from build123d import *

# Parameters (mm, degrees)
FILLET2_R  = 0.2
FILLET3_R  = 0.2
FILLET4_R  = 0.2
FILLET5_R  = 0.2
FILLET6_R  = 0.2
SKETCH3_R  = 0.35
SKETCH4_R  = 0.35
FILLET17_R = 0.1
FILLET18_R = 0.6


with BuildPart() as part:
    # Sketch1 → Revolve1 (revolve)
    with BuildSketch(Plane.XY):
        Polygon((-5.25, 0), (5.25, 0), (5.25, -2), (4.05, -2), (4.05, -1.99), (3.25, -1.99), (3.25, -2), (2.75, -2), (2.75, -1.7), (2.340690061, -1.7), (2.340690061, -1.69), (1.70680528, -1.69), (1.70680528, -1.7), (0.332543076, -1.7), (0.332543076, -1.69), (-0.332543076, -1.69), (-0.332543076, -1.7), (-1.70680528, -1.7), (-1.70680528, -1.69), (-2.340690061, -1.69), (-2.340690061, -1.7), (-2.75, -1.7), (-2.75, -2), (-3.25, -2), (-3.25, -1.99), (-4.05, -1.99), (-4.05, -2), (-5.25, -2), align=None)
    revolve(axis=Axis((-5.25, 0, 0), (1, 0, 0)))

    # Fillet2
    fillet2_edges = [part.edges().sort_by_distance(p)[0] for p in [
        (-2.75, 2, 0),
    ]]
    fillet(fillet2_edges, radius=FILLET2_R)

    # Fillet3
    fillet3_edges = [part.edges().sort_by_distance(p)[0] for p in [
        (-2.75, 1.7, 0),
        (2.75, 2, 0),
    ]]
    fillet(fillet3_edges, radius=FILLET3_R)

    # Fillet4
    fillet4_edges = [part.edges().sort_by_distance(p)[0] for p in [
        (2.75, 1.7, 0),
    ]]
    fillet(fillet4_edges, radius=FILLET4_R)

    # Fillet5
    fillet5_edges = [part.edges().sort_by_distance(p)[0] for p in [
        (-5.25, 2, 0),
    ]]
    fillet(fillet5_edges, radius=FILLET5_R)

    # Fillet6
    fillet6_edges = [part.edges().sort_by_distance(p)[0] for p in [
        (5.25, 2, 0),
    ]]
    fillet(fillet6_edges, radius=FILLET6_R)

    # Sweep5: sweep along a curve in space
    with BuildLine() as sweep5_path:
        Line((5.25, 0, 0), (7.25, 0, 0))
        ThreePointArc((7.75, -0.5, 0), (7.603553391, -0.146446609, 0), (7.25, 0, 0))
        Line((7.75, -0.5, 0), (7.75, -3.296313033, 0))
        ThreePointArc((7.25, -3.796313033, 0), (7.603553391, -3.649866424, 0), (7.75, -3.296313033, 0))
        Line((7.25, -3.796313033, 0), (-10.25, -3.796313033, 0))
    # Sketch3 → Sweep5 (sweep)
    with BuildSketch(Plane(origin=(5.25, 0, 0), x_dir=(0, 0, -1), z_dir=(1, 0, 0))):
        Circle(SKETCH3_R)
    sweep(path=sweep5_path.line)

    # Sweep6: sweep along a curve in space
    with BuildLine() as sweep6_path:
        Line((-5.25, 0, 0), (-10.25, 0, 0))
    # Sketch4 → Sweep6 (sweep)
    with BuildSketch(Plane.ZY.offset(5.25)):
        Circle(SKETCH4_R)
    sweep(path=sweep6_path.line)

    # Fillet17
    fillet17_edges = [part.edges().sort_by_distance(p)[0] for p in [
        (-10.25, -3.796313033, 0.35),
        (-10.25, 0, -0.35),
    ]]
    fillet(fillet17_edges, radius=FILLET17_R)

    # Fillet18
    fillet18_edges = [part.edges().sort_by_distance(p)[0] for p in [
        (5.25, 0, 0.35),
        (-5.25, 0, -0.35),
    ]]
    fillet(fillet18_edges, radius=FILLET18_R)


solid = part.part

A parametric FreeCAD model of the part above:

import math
import FreeCAD as App
import Part
import Sketcher
from FreeCAD import Vector


def edges_at(feature, points):
    """Names of the edges that pass closest to the given points."""
    edges = feature.Shape.Edges
    near = lambda p: min(range(len(edges)), key=lambda i: edges[i].distToShape(Part.Vertex(*p))[0])
    return sorted({f"Edge{near(p) + 1}" for p in points})


def add_polygon(sketch, points):
    """Adds a closed chain of lines whose ends are joined by coincident constraints."""
    first, n = sketch.GeometryCount, len(points)
    for a, b in zip(points, points[1:] + points[:1]):
        sketch.addGeometry(Part.LineSegment(App.Vector(*a, 0), App.Vector(*b, 0)), False)
    for i in range(n):
        sketch.addConstraint(Sketcher.Constraint("Coincident", first + i, 2, first + (i + 1) % n, 1))

doc = App.newDocument("Part")
body = doc.addObject("PartDesign::Body", "Body")

# Sketch on XY plane
sketch1 = doc.addObject("Sketcher::SketchObject", "Sketch")
body.addObject(sketch1)
sketch1.AttachmentSupport = (doc.XY_Plane, [""])
sketch1.MapMode = "FlatFace"
add_polygon(sketch1, [(5.25, 0), (-5.25, 0), (-5.25, -2), (-4.05, -2), (-4.05, -1.99), (-3.25, -1.99), (-3.25, -2), (-2.75, -2), (-2.75, -1.7), (-2.341, -1.7), (-2.341, -1.69), (-1.707, -1.69), (-1.707, -1.7), (-0.333, -1.7), (-0.333, -1.69), (0.333, -1.69), (0.333, -1.7), (1.707, -1.7), (1.707, -1.69), (2.341, -1.69), (2.341, -1.7), (2.75, -1.7), (2.75, -2), (3.25, -2), (3.25, -1.99), (4.05, -1.99), (4.05, -2), (5.25, -2)])  # lines 0-27
sketch1.addConstraint(Sketcher.Constraint("Horizontal", 0))
sketch1.addConstraint(Sketcher.Constraint("Vertical", 1))
sketch1.addConstraint(Sketcher.Constraint("Horizontal", 2))
sketch1.addConstraint(Sketcher.Constraint("Vertical", 3))
sketch1.addConstraint(Sketcher.Constraint("Horizontal", 4))
sketch1.addConstraint(Sketcher.Constraint("Vertical", 5))
sketch1.addConstraint(Sketcher.Constraint("Horizontal", 6))
sketch1.addConstraint(Sketcher.Constraint("Vertical", 7))
sketch1.addConstraint(Sketcher.Constraint("Horizontal", 8))
sketch1.addConstraint(Sketcher.Constraint("Vertical", 9))
sketch1.addConstraint(Sketcher.Constraint("Horizontal", 10))
sketch1.addConstraint(Sketcher.Constraint("Vertical", 11))
sketch1.addConstraint(Sketcher.Constraint("Horizontal", 12))
sketch1.addConstraint(Sketcher.Constraint("Vertical", 13))
sketch1.addConstraint(Sketcher.Constraint("Horizontal", 14))
sketch1.addConstraint(Sketcher.Constraint("Vertical", 15))
sketch1.addConstraint(Sketcher.Constraint("Horizontal", 16))
sketch1.addConstraint(Sketcher.Constraint("Vertical", 17))
sketch1.addConstraint(Sketcher.Constraint("Horizontal", 18))
sketch1.addConstraint(Sketcher.Constraint("Vertical", 19))
sketch1.addConstraint(Sketcher.Constraint("Horizontal", 20))
sketch1.addConstraint(Sketcher.Constraint("Vertical", 21))
sketch1.addConstraint(Sketcher.Constraint("Horizontal", 22))
sketch1.addConstraint(Sketcher.Constraint("Vertical", 23))
sketch1.addConstraint(Sketcher.Constraint("Horizontal", 24))
sketch1.addConstraint(Sketcher.Constraint("Vertical", 25))
sketch1.addConstraint(Sketcher.Constraint("Horizontal", 26))
sketch1.addConstraint(Sketcher.Constraint("Vertical", 27))
sketch1.addConstraint(Sketcher.Constraint("Symmetric", 0, 2, 27, 2, -1, 1))
sketch1.addConstraint(Sketcher.Constraint("Symmetric", 12, 2, 15, 2, -2))
sketch1.addConstraint(Sketcher.Constraint("Symmetric", 10, 2, 17, 2, -2))
sketch1.addConstraint(Sketcher.Constraint("Symmetric", 8, 2, 19, 2, -2))
sketch1.addConstraint(Sketcher.Constraint("Symmetric", 6, 2, 21, 2, -2))
sketch1.addConstraint(Sketcher.Constraint("Symmetric", 4, 2, 23, 2, -2))
sketch1.addConstraint(Sketcher.Constraint("Symmetric", 2, 2, 25, 2, -2))
sketch1.addConstraint(Sketcher.Constraint("Horizontal", 2, 2, 5, 2))
sketch1.addConstraint(Sketcher.Constraint("Horizontal", 8, 2, 11, 2))
sketch1.addConstraint(Sketcher.Constraint("Horizontal", 10, 2, 13, 2))
sketch1.addConstraint(Sketcher.Constraint("Equal", 5, 9))
sketch1.addConstraint(Sketcher.Constraint("DistanceY", 1, 2, 1, 1, 2.0))
sketch1.addConstraint(Sketcher.Constraint("DistanceX", 0, 2, 0, 1, 10.5))
sketch1.addConstraint(Sketcher.Constraint("DistanceX", 2, 1, 2, 2, 1.2))
sketch1.addConstraint(Sketcher.Constraint("DistanceX", 4, 1, 4, 2, 0.8))
sketch1.addConstraint(Sketcher.Constraint("DistanceX", 6, 1, 6, 2, 0.5))
sketch1.addConstraint(Sketcher.Constraint("DistanceY", 7, 1, 7, 2, 0.3))
sketch1.addConstraint(Sketcher.Constraint("DistanceY", 3, 1, 3, 2, 0.01))
sketch1.addConstraint(Sketcher.Constraint("DistanceX", 8, 1, 8, 2, 0.40931))
sketch1.addConstraint(Sketcher.Constraint("DistanceX", 10, 1, 10, 2, 0.633885))
sketch1.addConstraint(Sketcher.Constraint("DistanceX", 12, 1, 12, 2, 1.374262))
revolution = doc.addObject("PartDesign::Revolution", "Revolution")
body.addObject(revolution)
revolution.Profile = sketch1
revolution.ReferenceAxis = (sketch1, ["H_Axis"])
revolution.Angle = 360
doc.recompute()

fillet = doc.addObject("PartDesign::Fillet", "Fillet")
body.addObject(fillet)
fillet.Base = (revolution, edges_at(revolution, [(-2.75, 2, 0)]))
fillet.Radius = 0.2
doc.recompute()

fillet2 = doc.addObject("PartDesign::Fillet", "Fillet001")
body.addObject(fillet2)
fillet2.Base = (fillet, edges_at(fillet, [(-2.75, 1.7, 0), (2.75, 2, 0)]))
fillet2.Radius = 0.2
doc.recompute()

fillet3 = doc.addObject("PartDesign::Fillet", "Fillet002")
body.addObject(fillet3)
fillet3.Base = (fillet2, edges_at(fillet2, [(2.75, 1.7, 0)]))
fillet3.Radius = 0.2
doc.recompute()

fillet4 = doc.addObject("PartDesign::Fillet", "Fillet003")
body.addObject(fillet4)
fillet4.Base = (fillet3, edges_at(fillet3, [(-5.25, 2, 0)]))
fillet4.Radius = 0.2
doc.recompute()

fillet5 = doc.addObject("PartDesign::Fillet", "Fillet004")
body.addObject(fillet5)
fillet5.Base = (fillet4, edges_at(fillet4, [(5.25, 2, 0)]))
fillet5.Radius = 0.2

# Sketch on YZ plane
sketch2 = doc.addObject("Sketcher::SketchObject", "Sketch001")
body.addObject(sketch2)
sketch2.AttachmentSupport = (doc.YZ_Plane, [""])
sketch2.MapMode = "FlatFace"
sketch2.AttachmentOffset = App.Placement(Vector(0, 0, 5.25), App.Rotation())
sketch2.addGeometry(Part.Circle(Vector(0, 0, 0), Vector(0, 0, 1), 0.35), False)
sketch2.addConstraint(Sketcher.Constraint("Coincident", 0, 3, -1, 1))
sketch2.addConstraint(Sketcher.Constraint("Diameter", 0, 0.7))

# Sketch on XY plane
sketch3 = doc.addObject("Sketcher::SketchObject", "Sketch002")
body.addObject(sketch3)
sketch3.AttachmentSupport = (doc.XY_Plane, [""])
sketch3.MapMode = "FlatFace"
sketch3.addGeometry(Part.LineSegment(Vector(5.25, 0, 0), Vector(7.25, 0, 0)), False)
sketch3.addGeometry(Part.ArcOfCircle(Part.Circle(Vector(7.25, -0.5, 0), Vector(0, 0, 1), 0.5), math.radians(0), math.radians(90)), False)
sketch3.addGeometry(Part.LineSegment(Vector(7.75, -0.5, 0), Vector(7.75, -3.3, 0)), False)
sketch3.addGeometry(Part.ArcOfCircle(Part.Circle(Vector(7.25, -3.3, 0), Vector(0, 0, 1), 0.5), math.radians(-90), math.radians(0)), False)
sketch3.addGeometry(Part.LineSegment(Vector(7.25, -3.8, 0), Vector(-10.25, -3.8, 0)), False)
sketch3.addConstraint(Sketcher.Constraint("Tangent", 0, 2, 1, 2))
sketch3.addConstraint(Sketcher.Constraint("Tangent", 1, 1, 2, 1))
sketch3.addConstraint(Sketcher.Constraint("Tangent", 2, 2, 3, 2))
sketch3.addConstraint(Sketcher.Constraint("Tangent", 3, 1, 4, 1))
sketch3.addConstraint(Sketcher.Constraint("Horizontal", 0))
sketch3.addConstraint(Sketcher.Constraint("Vertical", 2))
sketch3.addConstraint(Sketcher.Constraint("Horizontal", 4))
sketch3.addConstraint(Sketcher.Constraint("Equal", 1, 3))
sketch3.addConstraint(Sketcher.Constraint("PointOnObject", 0, 1, -1))
sketch3.addConstraint(Sketcher.Constraint("Radius", 1, 0.5))
sketch3.addConstraint(Sketcher.Constraint("DistanceX", 0, 1, 0, 2, 2.0))
sketch3.addConstraint(Sketcher.Constraint("DistanceX", 4, 2, 4, 1, 17.5))
sketch3.addConstraint(Sketcher.Constraint("DistanceX", -1, 1, 1, 3, 7.25))
sketch3.addConstraint(Sketcher.Constraint("DistanceY", 2, 2, 2, 1, 2.796313))
doc.recompute()

additivepipe = doc.addObject("PartDesign::AdditivePipe", "AdditivePipe")
body.addObject(additivepipe)
additivepipe.Profile = sketch2
additivepipe.Spine = (sketch3, ["Edge1", "Edge2", "Edge3", "Edge4", "Edge5"])

# Sketch on YZ plane
sketch4 = doc.addObject("Sketcher::SketchObject", "Sketch003")
body.addObject(sketch4)
sketch4.AttachmentSupport = (doc.YZ_Plane, [""])
sketch4.MapMode = "FlatFace"
sketch4.AttachmentOffset = App.Placement(Vector(0, 0, -5.25), App.Rotation())
sketch4.addGeometry(Part.Circle(Vector(0, 0, 0), Vector(0, 0, 1), 0.35), False)
sketch4.addConstraint(Sketcher.Constraint("Coincident", 0, 3, -1, 1))
sketch4.addConstraint(Sketcher.Constraint("Diameter", 0, 0.7))

# Sketch on XY plane
sketch5 = doc.addObject("Sketcher::SketchObject", "Sketch004")
body.addObject(sketch5)
sketch5.AttachmentSupport = (doc.XY_Plane, [""])
sketch5.MapMode = "FlatFace"
sketch5.addGeometry(Part.LineSegment(Vector(-5, 0, 0), Vector(-10, 0, 0)), False)
sketch5.addConstraint(Sketcher.Constraint("Horizontal", 0))
sketch5.addConstraint(Sketcher.Constraint("PointOnObject", 0, 1, -1))
sketch5.addConstraint(Sketcher.Constraint("DistanceX", 0, 2, 0, 1, 5.0))
sketch5.addConstraint(Sketcher.Constraint("DistanceX", 0, 1, -1, 1, 5.25))
doc.recompute()

additivepipe2 = doc.addObject("PartDesign::AdditivePipe", "AdditivePipe001")
body.addObject(additivepipe2)
additivepipe2.Profile = sketch4
additivepipe2.Spine = (sketch5, ["Edge1"])
doc.recompute()

fillet6 = doc.addObject("PartDesign::Fillet", "Fillet005")
body.addObject(fillet6)
fillet6.Base = (additivepipe2, edges_at(additivepipe2, [(-10.25, -3.796, 0.35), (-10.25, 0, -0.35)]))
fillet6.Radius = 0.1
doc.recompute()

fillet7 = doc.addObject("PartDesign::Fillet", "Fillet006")
body.addObject(fillet7)
fillet7.Base = (fillet6, edges_at(fillet6, [(5.25, 0, 0.35), (-5.25, 0, -0.35)]))
fillet7.Radius = 0.6

doc.recompute()
